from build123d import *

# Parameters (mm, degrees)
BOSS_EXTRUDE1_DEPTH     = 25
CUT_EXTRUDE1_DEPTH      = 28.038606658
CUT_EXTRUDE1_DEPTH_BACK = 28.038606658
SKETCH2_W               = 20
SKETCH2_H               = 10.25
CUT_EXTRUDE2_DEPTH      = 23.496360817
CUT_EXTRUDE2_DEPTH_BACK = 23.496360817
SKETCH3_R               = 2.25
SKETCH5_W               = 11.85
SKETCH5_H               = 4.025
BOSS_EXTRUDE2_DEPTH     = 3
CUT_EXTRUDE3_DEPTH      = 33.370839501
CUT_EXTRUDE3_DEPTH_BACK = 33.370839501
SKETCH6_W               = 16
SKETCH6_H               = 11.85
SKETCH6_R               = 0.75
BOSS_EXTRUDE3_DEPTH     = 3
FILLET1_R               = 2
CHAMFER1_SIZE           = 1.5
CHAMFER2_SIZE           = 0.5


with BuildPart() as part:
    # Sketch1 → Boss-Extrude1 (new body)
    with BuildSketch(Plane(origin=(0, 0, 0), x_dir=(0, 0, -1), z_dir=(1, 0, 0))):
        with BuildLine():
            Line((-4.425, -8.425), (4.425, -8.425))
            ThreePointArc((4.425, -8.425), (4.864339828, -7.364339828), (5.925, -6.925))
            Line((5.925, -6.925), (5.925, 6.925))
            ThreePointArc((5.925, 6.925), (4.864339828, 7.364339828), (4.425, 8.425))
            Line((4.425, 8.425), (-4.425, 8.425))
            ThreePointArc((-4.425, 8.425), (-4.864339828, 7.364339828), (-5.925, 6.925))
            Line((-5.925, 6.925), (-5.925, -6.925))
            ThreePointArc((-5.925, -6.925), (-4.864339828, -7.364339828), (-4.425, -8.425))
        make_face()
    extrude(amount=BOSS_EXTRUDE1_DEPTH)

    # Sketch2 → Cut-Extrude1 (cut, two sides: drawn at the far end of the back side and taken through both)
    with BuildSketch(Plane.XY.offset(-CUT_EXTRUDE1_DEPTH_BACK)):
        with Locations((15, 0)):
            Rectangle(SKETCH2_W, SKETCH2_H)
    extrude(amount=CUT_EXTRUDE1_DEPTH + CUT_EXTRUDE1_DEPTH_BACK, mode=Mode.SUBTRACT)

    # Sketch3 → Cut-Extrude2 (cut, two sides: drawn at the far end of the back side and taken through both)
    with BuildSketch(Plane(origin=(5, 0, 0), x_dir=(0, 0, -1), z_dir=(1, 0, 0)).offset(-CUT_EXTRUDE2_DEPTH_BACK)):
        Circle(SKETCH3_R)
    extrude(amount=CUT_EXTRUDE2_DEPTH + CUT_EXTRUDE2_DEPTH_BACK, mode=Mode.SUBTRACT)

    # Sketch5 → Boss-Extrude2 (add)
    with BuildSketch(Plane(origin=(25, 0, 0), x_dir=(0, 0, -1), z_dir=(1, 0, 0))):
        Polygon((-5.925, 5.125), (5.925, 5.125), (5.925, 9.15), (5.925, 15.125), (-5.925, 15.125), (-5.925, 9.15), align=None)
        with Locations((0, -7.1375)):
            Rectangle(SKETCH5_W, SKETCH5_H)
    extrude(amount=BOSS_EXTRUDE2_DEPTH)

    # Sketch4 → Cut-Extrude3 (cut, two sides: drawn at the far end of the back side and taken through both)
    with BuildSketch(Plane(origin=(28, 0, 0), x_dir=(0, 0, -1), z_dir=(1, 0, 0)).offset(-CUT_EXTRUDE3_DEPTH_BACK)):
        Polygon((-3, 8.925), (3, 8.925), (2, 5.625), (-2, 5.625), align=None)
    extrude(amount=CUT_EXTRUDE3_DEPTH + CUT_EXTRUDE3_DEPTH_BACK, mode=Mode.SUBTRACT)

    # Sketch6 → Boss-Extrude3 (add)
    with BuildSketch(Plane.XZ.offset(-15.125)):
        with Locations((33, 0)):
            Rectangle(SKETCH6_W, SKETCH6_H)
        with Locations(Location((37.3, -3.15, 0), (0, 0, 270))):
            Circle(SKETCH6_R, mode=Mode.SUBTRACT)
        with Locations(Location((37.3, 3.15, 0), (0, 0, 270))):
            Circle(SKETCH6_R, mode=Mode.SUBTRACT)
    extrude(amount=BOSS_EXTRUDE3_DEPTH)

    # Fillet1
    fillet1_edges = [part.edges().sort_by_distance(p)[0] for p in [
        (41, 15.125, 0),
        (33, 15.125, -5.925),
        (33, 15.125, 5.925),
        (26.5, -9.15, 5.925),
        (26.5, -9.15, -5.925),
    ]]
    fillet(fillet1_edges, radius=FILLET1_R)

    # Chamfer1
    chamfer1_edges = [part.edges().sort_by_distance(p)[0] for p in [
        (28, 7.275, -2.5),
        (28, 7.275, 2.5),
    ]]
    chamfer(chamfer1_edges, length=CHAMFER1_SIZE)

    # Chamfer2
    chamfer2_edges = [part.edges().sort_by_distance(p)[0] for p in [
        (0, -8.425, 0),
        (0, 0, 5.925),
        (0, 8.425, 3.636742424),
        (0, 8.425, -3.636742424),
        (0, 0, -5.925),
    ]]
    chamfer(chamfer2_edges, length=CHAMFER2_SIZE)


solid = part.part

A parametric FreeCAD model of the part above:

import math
import FreeCAD as App
import Part
import Sketcher

V = App.Vector


def edges_at(feature, points):
    """Names of the edges that pass closest to the given points."""
    edges = feature.Shape.Edges
    near = lambda p: min(range(len(edges)), key=lambda i: edges[i].distToShape(Part.Vertex(*p))[0])
    return sorted({f"Edge{near(p) + 1}" for p in points})


def add_polygon(sketch, points):
    """Adds a closed chain of lines whose ends are joined by coincident constraints."""
    first, n = sketch.GeometryCount, len(points)
    for a, b in zip(points, points[1:] + points[:1]):
        sketch.addGeometry(Part.LineSegment(App.Vector(*a, 0), App.Vector(*b, 0)), False)
    for i in range(n):
        sketch.addConstraint(Sketcher.Constraint("Coincident", first + i, 2, first + (i + 1) % n, 1))

doc = App.newDocument("Part")
body = doc.addObject("PartDesign::Body", "Body")

sketch1 = body.newObject("Sketcher::SketchObject", "Sketch")
sketch1.AttachmentSupport = (doc.getObject("YZ_Plane"), [""])
sketch1.MapMode = "FlatFace"
sketch1.addGeometry([
    Part.LineSegment(V(-8.4, 4.4, 0), V(-8.4, -4.4, 0)),
    Part.ArcOfCircle(Part.Circle(V(-8.4, -5.9, 0), V(0, 0, 1), 1.5), math.radians(0), math.radians(90)),
    Part.LineSegment(V(-6.9, -5.9, 0), V(6.9, -5.9, 0)),
    Part.ArcOfCircle(Part.Circle(V(8.4, -5.9, 0), V(0, 0, 1), 1.5), math.radians(90), math.radians(180)),
    Part.LineSegment(V(8.4, -4.4, 0), V(8.4, 4.4, 0)),
    Part.ArcOfCircle(Part.Circle(V(8.4, 5.9, 0), V(0, 0, 1), 1.5), math.radians(180), math.radians(270)),
    Part.LineSegment(V(6.9, 5.9, 0), V(-6.9, 5.9, 0)),
    Part.ArcOfCircle(Part.Circle(V(-8.4, 5.9, 0), V(0, 0, 1), 1.5), math.radians(-90), math.radians(0)),
], False)
sketch1.addConstraint([
    Sketcher.Constraint("Coincident", 0, 2, 1, 2),
    Sketcher.Constraint("Coincident", 1, 1, 2, 1),
    Sketcher.Constraint("Coincident", 2, 2, 3, 2),
    Sketcher.Constraint("Coincident", 3, 1, 4, 1),
    Sketcher.Constraint("Coincident", 4, 2, 5, 2),
    Sketcher.Constraint("Coincident", 5, 1, 6, 1),
    Sketcher.Constraint("Coincident", 6, 2, 7, 2),
    Sketcher.Constraint("Coincident", 7, 1, 0, 1),
    Sketcher.Constraint("Vertical", 0),
    Sketcher.Constraint("Horizontal", 2),
    Sketcher.Constraint("Vertical", 4),
    Sketcher.Constraint("Horizontal", 6),
    Sketcher.Constraint("Equal", 1, 3),
    Sketcher.Constraint("Equal", 3, 5),
    Sketcher.Constraint("Equal", 5, 7),
    Sketcher.Constraint("Symmetric", 1, 3, 5, 3, -1, 1),
    Sketcher.Constraint("Symmetric", 3, 3, 7, 3, -1, 1),
    Sketcher.Constraint("Symmetric", 1, 3, 3, 3, -2),
    Sketcher.Constraint("Horizontal", 3, 3, 1, 1),
    Sketcher.Constraint("Horizontal", 7, 3, 5, 1),
    Sketcher.Constraint("Vertical", 7, 3, 0, 2),
    Sketcher.Constraint("Vertical", 5, 3, 3, 1),
    Sketcher.Constraint("Radius", 1, 1.5),
    Sketcher.Constraint("DistanceX", 2, 1, 2, 2, 13.85),
    Sketcher.Constraint("DistanceY", 0, 2, 0, 1, 8.85),
])
pad1 = body.newObject("PartDesign::Pad", "Pad")
pad1.Profile = sketch1
pad1.Length = 25

sketch2 = body.newObject("Sketcher::SketchObject", "Sketch001")
sketch2.AttachmentSupport = (doc.getObject("XY_Plane"), [""])
sketch2.MapMode = "FlatFace"
add_polygon(sketch2, [(5, 5), (5, -5), (25, -5), (25, 5)])
sketch2.addConstraint([
    Sketcher.Constraint("Vertical", 0),
    Sketcher.Constraint("Horizontal", 1),
    Sketcher.Constraint("Vertical", 2),
    Sketcher.Constraint("Horizontal", 3),
    Sketcher.Constraint("DistanceX", 1, 1, 1, 2, 20.0),
    Sketcher.Constraint("DistanceX", -1, 1, 0, 2, 5.0),
    Sketcher.Constraint("DistanceY", 0, 2, 0, 1, 10.25),
    Sketcher.Constraint("DistanceY", 0, 2, -1, 1, 5.125),
])
pocket1 = body.newObject("PartDesign::Pocket", "Pocket")
pocket1.Profile = sketch2
pocket1.Type = "ThroughAll"
pocket1.Midplane = True

sketch3 = body.newObject("Sketcher::SketchObject", "Sketch002")
sketch3.AttachmentSupport = (doc.getObject("YZ_Plane"), [""])
sketch3.MapMode = "FlatFace"
sketch3.AttachmentOffset = App.Placement(V(0, 0, 5), App.Rotation())
sketch3.addGeometry(Part.Circle(V(0, 0, 0), V(0, 0, 1), 2.2), False)
sketch3.addConstraint([
    Sketcher.Constraint("Coincident", 0, 3, -1, 1),
    Sketcher.Constraint("Diameter", 0, 4.5),
])
pocket2 = body.newObject("PartDesign::Pocket", "Pocket001")
pocket2.Profile = sketch3
pocket2.Type = "ThroughAll"
pocket2.Midplane = True

sketch4 = body.newObject("Sketcher::SketchObject", "Sketch003")
sketch4.AttachmentSupport = (doc.getObject("YZ_Plane"), [""])
sketch4.MapMode = "FlatFace"
sketch4.AttachmentOffset = App.Placement(V(0, 0, 25), App.Rotation())
add_polygon(sketch4, [(5.1, 5.9), (5.1, -5.9), (15.1, -5.9), (15.1, 5.9)])
add_polygon(sketch4, [(-5.1, 5.9), (-9.2, 5.9), (-9.2, -5.9), (-5.1, -5.9)])
sketch4.addConstraint([
    Sketcher.Constraint("Vertical", 0),
    Sketcher.Constraint("Horizontal", 1),
    Sketcher.Constraint("Vertical", 2),
    Sketcher.Constraint("Horizontal", 3),
    Sketcher.Constraint("Horizontal", 4),
    Sketcher.Constraint("Vertical", 5),
    Sketcher.Constraint("Horizontal", 6),
    Sketcher.Constraint("Vertical", 7),
    Sketcher.Constraint("Symmetric", 3, 2, 6, 2, -1, 1),
    Sketcher.Constraint("Horizontal", 3, 2, 4, 2),
    Sketcher.Constraint("Horizontal", 1, 2, 5, 2),
    Sketcher.Constraint("DistanceX", 1, 1, 1, 2, 10.0),
    Sketcher.Constraint("DistanceY", 0, 2, 0, 1, 11.85),
    Sketcher.Constraint("DistanceX", 4, 2, 4, 1, 4.025),
    Sketcher.Constraint("DistanceX", 4, 2, -1, 1, 9.15),
])
pad2 = body.newObject("PartDesign::Pad", "Pad001")
pad2.Profile = sketch4
pad2.Length = 3

sketch5 = body.newObject("Sketcher::SketchObject", "Sketch004")
sketch5.AttachmentSupport = (doc.getObject("YZ_Plane"), [""])
sketch5.MapMode = "FlatFace"
sketch5.AttachmentOffset = App.Placement(V(0, 0, 28), App.Rotation())
add_polygon(sketch5, [(8.9, -3), (8.9, 3), (5.6, 2), (5.6, -2)])
sketch5.addConstraint([
    Sketcher.Constraint("Vertical", 0),
    Sketcher.Constraint("Vertical", 2),
    Sketcher.Constraint("Equal", 1, 3),
    Sketcher.Constraint("DistanceY", 0, 1, 0, 2, 6.0),
    Sketcher.Constraint("DistanceY", 2, 2, 2, 1, 4.0),
    Sketcher.Constraint("DistanceY", -1, 1, 0, 2, 3.0),
    Sketcher.Constraint("DistanceX", 1, 2, 0, 2, 3.3),
    Sketcher.Constraint("DistanceX", -1, 1, 0, 2, 8.925),
])
pocket3 = body.newObject("PartDesign::Pocket", "Pocket002")
pocket3.Profile = sketch5
pocket3.Type = "ThroughAll"
pocket3.Midplane = True

sketch6 = body.newObject("Sketcher::SketchObject", "Sketch005")
sketch6.AttachmentSupport = (doc.getObject("XZ_Plane"), [""])
sketch6.MapMode = "FlatFace"
sketch6.AttachmentOffset = App.Placement(V(0, 0, -15.125), App.Rotation())
add_polygon(sketch6, [(25, 5.9), (25, -5.9), (41, -5.9), (41, 5.9)])
sketch6.addGeometry(Part.Circle(V(37.3, -3.1, 0), V(0, 0, 1), 0.8), False)
sketch6.addGeometry(Part.Circle(V(37.3, 3.1, 0), V(0, 0, 1), 0.8), False)
sketch6.addConstraint([
    Sketcher.Constraint("Vertical", 0),
    Sketcher.Constraint("Horizontal", 1),
    Sketcher.Constraint("Vertical", 2),
    Sketcher.Constraint("Horizontal", 3),
    Sketcher.Constraint("Equal", 4, 5),
    Sketcher.Constraint("Symmetric", 4, 3, 5, 3, -1),
    Sketcher.Constraint("Diameter", 4, 1.5),
    Sketcher.Constraint("DistanceX", 1, 1, 1, 2, 16.0),
    Sketcher.Constraint("DistanceX", -1, 1, 0, 2, 25.0),
    Sketcher.Constraint("DistanceY", 0, 2, 0, 1, 11.85),
    Sketcher.Constraint("DistanceX", -1, 1, 4, 3, 37.3),
    Sketcher.Constraint("DistanceY", 4, 3, 5, 3, 6.3),
    Sketcher.Constraint("DistanceY", 0, 2, -1, 1, 5.925),
])
pad3 = body.newObject("PartDesign::Pad", "Pad002")
pad3.Profile = sketch6
pad3.Length = 3
doc.recompute()

fillet = body.newObject("PartDesign::Fillet", "Fillet")
fillet.Base = (pad3, edges_at(pad3, [
    (41, 15.125, 0),
    (33, 15.125, -5.925),
    (33, 15.125, 5.925),
    (26.5, -9.15, 5.925),
    (26.5, -9.15, -5.925),
]))
fillet.Radius = 2
doc.recompute()

chamfer = body.newObject("PartDesign::Chamfer", "Chamfer")
chamfer.Base = (fillet, edges_at(fillet, [(28, 7.275, -2.5), (28, 7.275, 2.5)]))
chamfer.Size = 1.5
doc.recompute()

chamfer2 = body.newObject("PartDesign::Chamfer", "Chamfer001")
chamfer2.Base = (chamfer, edges_at(chamfer, [
    (0, -8.425, 0),
    (0, 0, 5.925),
    (0, 8.425, 3.637),
    (0, 8.425, -3.637),
    (0, 0, -5.925),
]))
chamfer2.Size = 0.5

doc.recompute()
